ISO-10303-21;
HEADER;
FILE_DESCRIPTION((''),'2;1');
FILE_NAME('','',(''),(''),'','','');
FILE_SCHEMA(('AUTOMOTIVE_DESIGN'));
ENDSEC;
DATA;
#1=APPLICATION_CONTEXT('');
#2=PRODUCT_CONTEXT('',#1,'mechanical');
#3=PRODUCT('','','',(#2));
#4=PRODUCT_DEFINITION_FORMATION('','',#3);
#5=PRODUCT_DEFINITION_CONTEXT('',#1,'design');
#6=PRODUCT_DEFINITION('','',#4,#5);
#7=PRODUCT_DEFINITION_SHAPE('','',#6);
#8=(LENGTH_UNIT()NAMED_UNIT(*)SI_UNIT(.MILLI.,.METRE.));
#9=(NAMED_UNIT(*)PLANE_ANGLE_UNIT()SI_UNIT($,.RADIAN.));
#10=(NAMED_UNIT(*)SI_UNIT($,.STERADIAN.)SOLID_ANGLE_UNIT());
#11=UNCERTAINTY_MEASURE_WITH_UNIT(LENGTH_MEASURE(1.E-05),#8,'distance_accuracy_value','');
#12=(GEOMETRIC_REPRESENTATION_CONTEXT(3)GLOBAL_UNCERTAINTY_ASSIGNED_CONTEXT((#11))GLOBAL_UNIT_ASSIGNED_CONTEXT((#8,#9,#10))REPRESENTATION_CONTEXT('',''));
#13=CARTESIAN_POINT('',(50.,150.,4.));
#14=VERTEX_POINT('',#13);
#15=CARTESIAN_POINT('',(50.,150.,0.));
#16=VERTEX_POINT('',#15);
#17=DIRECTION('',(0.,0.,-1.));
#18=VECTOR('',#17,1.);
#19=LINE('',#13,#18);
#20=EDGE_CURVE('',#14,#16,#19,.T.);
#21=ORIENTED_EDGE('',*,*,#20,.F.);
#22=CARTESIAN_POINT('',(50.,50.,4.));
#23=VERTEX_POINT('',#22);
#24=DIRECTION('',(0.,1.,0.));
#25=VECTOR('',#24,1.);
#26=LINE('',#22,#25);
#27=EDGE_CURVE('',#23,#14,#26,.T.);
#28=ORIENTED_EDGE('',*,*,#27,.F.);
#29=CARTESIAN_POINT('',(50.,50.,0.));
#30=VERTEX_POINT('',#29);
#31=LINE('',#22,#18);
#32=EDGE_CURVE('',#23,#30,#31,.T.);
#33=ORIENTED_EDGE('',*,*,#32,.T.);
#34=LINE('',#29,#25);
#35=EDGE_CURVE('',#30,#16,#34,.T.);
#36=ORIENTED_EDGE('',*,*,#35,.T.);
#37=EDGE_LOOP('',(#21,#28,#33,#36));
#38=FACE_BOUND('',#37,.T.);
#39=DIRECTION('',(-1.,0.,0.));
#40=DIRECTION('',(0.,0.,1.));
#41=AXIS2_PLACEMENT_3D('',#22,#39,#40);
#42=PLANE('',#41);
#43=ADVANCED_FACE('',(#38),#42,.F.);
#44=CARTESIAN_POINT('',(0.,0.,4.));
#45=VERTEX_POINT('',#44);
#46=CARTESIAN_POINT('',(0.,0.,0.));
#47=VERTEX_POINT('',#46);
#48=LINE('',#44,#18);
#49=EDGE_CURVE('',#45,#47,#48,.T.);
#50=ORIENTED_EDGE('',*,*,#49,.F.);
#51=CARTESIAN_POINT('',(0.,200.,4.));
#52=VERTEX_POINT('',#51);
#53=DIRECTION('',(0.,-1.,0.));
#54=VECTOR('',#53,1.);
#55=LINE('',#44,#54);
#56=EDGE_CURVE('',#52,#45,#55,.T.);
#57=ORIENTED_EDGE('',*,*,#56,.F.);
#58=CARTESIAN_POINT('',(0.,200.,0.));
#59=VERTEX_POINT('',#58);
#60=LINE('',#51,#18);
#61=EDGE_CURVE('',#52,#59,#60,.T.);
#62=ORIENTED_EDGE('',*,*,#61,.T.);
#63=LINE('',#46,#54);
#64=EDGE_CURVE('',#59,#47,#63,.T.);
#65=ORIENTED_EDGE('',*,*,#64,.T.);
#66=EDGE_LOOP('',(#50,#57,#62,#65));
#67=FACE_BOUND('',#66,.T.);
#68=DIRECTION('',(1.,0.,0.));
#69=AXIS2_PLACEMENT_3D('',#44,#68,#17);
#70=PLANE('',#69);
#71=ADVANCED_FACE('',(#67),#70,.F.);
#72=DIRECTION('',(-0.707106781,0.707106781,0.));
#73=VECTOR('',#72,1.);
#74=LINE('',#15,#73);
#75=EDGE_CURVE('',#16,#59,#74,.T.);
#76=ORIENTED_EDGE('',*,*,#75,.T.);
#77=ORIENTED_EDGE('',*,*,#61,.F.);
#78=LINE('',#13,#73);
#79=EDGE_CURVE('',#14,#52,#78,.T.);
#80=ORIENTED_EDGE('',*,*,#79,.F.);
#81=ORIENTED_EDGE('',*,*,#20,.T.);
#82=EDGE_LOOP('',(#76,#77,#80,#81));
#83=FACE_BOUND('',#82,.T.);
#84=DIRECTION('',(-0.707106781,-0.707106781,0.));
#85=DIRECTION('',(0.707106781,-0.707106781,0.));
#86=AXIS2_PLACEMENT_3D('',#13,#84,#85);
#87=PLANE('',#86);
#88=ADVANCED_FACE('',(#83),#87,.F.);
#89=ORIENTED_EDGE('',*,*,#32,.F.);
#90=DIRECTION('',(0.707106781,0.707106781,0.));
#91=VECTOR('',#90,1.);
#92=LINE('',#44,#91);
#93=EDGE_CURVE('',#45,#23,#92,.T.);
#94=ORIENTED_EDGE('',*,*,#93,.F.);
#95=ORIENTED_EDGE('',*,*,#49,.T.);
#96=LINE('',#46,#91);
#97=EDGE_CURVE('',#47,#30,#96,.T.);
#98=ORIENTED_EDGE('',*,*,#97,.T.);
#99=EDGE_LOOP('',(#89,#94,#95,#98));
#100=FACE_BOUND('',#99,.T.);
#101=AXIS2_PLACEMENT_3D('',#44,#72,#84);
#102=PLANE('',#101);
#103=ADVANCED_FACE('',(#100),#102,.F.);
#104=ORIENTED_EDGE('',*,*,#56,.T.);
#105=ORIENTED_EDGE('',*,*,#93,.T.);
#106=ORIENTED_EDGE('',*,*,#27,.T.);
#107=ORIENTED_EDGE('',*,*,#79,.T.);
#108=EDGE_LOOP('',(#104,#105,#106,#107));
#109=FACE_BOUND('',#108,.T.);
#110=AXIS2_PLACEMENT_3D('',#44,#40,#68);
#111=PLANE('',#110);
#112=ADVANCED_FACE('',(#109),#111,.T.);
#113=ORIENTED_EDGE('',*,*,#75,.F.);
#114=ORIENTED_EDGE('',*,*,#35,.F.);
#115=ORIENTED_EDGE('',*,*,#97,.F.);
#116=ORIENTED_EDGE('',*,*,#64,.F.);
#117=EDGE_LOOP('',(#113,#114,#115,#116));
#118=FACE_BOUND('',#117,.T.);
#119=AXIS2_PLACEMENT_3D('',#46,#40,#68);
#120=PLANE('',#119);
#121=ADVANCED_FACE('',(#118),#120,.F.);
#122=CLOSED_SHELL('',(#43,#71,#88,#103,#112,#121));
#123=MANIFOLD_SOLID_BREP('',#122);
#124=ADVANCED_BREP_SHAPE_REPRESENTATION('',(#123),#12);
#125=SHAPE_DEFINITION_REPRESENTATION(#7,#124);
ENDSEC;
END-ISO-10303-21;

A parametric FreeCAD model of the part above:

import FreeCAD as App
import Part
import Sketcher
from FreeCAD import Vector

doc = App.newDocument("Part")
body = doc.addObject("PartDesign::Body", "Body")

sketch1 = body.newObject("Sketcher::SketchObject", "Sketch")
sketch1.AttachmentSupport = (doc.getObject("XY_Plane"), [""])
sketch1.MapMode = "FlatFace"
sketch1.addGeometry(Part.LineSegment(Vector(0, 200, 0), Vector(0, 0, 0)), False)
sketch1.addGeometry(Part.LineSegment(Vector(0, 0, 0), Vector(50, 50, 0)), False)
sketch1.addGeometry(Part.LineSegment(Vector(50, 50, 0), Vector(50, 150, 0)), False)
sketch1.addGeometry(Part.LineSegment(Vector(50, 150, 0), Vector(0, 200, 0)), False)
sketch1.addConstraint(Sketcher.Constraint("Coincident", 0, 2, 1, 1))
sketch1.addConstraint(Sketcher.Constraint("Coincident", 1, 2, 2, 1))
sketch1.addConstraint(Sketcher.Constraint("Coincident", 2, 2, 3, 1))
sketch1.addConstraint(Sketcher.Constraint("Coincident", 3, 2, 0, 1))
sketch1.addConstraint(Sketcher.Constraint("Vertical", 0))
sketch1.addConstraint(Sketcher.Constraint("Vertical", 2))
sketch1.addConstraint(Sketcher.Constraint("Coincident", 0, 2, -1, 1))
sketch1.addConstraint(Sketcher.Constraint("Perpendicular", 1, 3))
sketch1.addConstraint(Sketcher.Constraint("Equal", 1, 3))
sketch1.addConstraint(Sketcher.Constraint("DistanceY", 0, 2, 0, 1, 200.0))
sketch1.addConstraint(Sketcher.Constraint("DistanceY", 2, 1, 2, 2, 100.0))
pad1 = body.newObject("PartDesign::Pad", "Pad")
pad1.Profile = sketch1
pad1.Length = 4

doc.recompute()
